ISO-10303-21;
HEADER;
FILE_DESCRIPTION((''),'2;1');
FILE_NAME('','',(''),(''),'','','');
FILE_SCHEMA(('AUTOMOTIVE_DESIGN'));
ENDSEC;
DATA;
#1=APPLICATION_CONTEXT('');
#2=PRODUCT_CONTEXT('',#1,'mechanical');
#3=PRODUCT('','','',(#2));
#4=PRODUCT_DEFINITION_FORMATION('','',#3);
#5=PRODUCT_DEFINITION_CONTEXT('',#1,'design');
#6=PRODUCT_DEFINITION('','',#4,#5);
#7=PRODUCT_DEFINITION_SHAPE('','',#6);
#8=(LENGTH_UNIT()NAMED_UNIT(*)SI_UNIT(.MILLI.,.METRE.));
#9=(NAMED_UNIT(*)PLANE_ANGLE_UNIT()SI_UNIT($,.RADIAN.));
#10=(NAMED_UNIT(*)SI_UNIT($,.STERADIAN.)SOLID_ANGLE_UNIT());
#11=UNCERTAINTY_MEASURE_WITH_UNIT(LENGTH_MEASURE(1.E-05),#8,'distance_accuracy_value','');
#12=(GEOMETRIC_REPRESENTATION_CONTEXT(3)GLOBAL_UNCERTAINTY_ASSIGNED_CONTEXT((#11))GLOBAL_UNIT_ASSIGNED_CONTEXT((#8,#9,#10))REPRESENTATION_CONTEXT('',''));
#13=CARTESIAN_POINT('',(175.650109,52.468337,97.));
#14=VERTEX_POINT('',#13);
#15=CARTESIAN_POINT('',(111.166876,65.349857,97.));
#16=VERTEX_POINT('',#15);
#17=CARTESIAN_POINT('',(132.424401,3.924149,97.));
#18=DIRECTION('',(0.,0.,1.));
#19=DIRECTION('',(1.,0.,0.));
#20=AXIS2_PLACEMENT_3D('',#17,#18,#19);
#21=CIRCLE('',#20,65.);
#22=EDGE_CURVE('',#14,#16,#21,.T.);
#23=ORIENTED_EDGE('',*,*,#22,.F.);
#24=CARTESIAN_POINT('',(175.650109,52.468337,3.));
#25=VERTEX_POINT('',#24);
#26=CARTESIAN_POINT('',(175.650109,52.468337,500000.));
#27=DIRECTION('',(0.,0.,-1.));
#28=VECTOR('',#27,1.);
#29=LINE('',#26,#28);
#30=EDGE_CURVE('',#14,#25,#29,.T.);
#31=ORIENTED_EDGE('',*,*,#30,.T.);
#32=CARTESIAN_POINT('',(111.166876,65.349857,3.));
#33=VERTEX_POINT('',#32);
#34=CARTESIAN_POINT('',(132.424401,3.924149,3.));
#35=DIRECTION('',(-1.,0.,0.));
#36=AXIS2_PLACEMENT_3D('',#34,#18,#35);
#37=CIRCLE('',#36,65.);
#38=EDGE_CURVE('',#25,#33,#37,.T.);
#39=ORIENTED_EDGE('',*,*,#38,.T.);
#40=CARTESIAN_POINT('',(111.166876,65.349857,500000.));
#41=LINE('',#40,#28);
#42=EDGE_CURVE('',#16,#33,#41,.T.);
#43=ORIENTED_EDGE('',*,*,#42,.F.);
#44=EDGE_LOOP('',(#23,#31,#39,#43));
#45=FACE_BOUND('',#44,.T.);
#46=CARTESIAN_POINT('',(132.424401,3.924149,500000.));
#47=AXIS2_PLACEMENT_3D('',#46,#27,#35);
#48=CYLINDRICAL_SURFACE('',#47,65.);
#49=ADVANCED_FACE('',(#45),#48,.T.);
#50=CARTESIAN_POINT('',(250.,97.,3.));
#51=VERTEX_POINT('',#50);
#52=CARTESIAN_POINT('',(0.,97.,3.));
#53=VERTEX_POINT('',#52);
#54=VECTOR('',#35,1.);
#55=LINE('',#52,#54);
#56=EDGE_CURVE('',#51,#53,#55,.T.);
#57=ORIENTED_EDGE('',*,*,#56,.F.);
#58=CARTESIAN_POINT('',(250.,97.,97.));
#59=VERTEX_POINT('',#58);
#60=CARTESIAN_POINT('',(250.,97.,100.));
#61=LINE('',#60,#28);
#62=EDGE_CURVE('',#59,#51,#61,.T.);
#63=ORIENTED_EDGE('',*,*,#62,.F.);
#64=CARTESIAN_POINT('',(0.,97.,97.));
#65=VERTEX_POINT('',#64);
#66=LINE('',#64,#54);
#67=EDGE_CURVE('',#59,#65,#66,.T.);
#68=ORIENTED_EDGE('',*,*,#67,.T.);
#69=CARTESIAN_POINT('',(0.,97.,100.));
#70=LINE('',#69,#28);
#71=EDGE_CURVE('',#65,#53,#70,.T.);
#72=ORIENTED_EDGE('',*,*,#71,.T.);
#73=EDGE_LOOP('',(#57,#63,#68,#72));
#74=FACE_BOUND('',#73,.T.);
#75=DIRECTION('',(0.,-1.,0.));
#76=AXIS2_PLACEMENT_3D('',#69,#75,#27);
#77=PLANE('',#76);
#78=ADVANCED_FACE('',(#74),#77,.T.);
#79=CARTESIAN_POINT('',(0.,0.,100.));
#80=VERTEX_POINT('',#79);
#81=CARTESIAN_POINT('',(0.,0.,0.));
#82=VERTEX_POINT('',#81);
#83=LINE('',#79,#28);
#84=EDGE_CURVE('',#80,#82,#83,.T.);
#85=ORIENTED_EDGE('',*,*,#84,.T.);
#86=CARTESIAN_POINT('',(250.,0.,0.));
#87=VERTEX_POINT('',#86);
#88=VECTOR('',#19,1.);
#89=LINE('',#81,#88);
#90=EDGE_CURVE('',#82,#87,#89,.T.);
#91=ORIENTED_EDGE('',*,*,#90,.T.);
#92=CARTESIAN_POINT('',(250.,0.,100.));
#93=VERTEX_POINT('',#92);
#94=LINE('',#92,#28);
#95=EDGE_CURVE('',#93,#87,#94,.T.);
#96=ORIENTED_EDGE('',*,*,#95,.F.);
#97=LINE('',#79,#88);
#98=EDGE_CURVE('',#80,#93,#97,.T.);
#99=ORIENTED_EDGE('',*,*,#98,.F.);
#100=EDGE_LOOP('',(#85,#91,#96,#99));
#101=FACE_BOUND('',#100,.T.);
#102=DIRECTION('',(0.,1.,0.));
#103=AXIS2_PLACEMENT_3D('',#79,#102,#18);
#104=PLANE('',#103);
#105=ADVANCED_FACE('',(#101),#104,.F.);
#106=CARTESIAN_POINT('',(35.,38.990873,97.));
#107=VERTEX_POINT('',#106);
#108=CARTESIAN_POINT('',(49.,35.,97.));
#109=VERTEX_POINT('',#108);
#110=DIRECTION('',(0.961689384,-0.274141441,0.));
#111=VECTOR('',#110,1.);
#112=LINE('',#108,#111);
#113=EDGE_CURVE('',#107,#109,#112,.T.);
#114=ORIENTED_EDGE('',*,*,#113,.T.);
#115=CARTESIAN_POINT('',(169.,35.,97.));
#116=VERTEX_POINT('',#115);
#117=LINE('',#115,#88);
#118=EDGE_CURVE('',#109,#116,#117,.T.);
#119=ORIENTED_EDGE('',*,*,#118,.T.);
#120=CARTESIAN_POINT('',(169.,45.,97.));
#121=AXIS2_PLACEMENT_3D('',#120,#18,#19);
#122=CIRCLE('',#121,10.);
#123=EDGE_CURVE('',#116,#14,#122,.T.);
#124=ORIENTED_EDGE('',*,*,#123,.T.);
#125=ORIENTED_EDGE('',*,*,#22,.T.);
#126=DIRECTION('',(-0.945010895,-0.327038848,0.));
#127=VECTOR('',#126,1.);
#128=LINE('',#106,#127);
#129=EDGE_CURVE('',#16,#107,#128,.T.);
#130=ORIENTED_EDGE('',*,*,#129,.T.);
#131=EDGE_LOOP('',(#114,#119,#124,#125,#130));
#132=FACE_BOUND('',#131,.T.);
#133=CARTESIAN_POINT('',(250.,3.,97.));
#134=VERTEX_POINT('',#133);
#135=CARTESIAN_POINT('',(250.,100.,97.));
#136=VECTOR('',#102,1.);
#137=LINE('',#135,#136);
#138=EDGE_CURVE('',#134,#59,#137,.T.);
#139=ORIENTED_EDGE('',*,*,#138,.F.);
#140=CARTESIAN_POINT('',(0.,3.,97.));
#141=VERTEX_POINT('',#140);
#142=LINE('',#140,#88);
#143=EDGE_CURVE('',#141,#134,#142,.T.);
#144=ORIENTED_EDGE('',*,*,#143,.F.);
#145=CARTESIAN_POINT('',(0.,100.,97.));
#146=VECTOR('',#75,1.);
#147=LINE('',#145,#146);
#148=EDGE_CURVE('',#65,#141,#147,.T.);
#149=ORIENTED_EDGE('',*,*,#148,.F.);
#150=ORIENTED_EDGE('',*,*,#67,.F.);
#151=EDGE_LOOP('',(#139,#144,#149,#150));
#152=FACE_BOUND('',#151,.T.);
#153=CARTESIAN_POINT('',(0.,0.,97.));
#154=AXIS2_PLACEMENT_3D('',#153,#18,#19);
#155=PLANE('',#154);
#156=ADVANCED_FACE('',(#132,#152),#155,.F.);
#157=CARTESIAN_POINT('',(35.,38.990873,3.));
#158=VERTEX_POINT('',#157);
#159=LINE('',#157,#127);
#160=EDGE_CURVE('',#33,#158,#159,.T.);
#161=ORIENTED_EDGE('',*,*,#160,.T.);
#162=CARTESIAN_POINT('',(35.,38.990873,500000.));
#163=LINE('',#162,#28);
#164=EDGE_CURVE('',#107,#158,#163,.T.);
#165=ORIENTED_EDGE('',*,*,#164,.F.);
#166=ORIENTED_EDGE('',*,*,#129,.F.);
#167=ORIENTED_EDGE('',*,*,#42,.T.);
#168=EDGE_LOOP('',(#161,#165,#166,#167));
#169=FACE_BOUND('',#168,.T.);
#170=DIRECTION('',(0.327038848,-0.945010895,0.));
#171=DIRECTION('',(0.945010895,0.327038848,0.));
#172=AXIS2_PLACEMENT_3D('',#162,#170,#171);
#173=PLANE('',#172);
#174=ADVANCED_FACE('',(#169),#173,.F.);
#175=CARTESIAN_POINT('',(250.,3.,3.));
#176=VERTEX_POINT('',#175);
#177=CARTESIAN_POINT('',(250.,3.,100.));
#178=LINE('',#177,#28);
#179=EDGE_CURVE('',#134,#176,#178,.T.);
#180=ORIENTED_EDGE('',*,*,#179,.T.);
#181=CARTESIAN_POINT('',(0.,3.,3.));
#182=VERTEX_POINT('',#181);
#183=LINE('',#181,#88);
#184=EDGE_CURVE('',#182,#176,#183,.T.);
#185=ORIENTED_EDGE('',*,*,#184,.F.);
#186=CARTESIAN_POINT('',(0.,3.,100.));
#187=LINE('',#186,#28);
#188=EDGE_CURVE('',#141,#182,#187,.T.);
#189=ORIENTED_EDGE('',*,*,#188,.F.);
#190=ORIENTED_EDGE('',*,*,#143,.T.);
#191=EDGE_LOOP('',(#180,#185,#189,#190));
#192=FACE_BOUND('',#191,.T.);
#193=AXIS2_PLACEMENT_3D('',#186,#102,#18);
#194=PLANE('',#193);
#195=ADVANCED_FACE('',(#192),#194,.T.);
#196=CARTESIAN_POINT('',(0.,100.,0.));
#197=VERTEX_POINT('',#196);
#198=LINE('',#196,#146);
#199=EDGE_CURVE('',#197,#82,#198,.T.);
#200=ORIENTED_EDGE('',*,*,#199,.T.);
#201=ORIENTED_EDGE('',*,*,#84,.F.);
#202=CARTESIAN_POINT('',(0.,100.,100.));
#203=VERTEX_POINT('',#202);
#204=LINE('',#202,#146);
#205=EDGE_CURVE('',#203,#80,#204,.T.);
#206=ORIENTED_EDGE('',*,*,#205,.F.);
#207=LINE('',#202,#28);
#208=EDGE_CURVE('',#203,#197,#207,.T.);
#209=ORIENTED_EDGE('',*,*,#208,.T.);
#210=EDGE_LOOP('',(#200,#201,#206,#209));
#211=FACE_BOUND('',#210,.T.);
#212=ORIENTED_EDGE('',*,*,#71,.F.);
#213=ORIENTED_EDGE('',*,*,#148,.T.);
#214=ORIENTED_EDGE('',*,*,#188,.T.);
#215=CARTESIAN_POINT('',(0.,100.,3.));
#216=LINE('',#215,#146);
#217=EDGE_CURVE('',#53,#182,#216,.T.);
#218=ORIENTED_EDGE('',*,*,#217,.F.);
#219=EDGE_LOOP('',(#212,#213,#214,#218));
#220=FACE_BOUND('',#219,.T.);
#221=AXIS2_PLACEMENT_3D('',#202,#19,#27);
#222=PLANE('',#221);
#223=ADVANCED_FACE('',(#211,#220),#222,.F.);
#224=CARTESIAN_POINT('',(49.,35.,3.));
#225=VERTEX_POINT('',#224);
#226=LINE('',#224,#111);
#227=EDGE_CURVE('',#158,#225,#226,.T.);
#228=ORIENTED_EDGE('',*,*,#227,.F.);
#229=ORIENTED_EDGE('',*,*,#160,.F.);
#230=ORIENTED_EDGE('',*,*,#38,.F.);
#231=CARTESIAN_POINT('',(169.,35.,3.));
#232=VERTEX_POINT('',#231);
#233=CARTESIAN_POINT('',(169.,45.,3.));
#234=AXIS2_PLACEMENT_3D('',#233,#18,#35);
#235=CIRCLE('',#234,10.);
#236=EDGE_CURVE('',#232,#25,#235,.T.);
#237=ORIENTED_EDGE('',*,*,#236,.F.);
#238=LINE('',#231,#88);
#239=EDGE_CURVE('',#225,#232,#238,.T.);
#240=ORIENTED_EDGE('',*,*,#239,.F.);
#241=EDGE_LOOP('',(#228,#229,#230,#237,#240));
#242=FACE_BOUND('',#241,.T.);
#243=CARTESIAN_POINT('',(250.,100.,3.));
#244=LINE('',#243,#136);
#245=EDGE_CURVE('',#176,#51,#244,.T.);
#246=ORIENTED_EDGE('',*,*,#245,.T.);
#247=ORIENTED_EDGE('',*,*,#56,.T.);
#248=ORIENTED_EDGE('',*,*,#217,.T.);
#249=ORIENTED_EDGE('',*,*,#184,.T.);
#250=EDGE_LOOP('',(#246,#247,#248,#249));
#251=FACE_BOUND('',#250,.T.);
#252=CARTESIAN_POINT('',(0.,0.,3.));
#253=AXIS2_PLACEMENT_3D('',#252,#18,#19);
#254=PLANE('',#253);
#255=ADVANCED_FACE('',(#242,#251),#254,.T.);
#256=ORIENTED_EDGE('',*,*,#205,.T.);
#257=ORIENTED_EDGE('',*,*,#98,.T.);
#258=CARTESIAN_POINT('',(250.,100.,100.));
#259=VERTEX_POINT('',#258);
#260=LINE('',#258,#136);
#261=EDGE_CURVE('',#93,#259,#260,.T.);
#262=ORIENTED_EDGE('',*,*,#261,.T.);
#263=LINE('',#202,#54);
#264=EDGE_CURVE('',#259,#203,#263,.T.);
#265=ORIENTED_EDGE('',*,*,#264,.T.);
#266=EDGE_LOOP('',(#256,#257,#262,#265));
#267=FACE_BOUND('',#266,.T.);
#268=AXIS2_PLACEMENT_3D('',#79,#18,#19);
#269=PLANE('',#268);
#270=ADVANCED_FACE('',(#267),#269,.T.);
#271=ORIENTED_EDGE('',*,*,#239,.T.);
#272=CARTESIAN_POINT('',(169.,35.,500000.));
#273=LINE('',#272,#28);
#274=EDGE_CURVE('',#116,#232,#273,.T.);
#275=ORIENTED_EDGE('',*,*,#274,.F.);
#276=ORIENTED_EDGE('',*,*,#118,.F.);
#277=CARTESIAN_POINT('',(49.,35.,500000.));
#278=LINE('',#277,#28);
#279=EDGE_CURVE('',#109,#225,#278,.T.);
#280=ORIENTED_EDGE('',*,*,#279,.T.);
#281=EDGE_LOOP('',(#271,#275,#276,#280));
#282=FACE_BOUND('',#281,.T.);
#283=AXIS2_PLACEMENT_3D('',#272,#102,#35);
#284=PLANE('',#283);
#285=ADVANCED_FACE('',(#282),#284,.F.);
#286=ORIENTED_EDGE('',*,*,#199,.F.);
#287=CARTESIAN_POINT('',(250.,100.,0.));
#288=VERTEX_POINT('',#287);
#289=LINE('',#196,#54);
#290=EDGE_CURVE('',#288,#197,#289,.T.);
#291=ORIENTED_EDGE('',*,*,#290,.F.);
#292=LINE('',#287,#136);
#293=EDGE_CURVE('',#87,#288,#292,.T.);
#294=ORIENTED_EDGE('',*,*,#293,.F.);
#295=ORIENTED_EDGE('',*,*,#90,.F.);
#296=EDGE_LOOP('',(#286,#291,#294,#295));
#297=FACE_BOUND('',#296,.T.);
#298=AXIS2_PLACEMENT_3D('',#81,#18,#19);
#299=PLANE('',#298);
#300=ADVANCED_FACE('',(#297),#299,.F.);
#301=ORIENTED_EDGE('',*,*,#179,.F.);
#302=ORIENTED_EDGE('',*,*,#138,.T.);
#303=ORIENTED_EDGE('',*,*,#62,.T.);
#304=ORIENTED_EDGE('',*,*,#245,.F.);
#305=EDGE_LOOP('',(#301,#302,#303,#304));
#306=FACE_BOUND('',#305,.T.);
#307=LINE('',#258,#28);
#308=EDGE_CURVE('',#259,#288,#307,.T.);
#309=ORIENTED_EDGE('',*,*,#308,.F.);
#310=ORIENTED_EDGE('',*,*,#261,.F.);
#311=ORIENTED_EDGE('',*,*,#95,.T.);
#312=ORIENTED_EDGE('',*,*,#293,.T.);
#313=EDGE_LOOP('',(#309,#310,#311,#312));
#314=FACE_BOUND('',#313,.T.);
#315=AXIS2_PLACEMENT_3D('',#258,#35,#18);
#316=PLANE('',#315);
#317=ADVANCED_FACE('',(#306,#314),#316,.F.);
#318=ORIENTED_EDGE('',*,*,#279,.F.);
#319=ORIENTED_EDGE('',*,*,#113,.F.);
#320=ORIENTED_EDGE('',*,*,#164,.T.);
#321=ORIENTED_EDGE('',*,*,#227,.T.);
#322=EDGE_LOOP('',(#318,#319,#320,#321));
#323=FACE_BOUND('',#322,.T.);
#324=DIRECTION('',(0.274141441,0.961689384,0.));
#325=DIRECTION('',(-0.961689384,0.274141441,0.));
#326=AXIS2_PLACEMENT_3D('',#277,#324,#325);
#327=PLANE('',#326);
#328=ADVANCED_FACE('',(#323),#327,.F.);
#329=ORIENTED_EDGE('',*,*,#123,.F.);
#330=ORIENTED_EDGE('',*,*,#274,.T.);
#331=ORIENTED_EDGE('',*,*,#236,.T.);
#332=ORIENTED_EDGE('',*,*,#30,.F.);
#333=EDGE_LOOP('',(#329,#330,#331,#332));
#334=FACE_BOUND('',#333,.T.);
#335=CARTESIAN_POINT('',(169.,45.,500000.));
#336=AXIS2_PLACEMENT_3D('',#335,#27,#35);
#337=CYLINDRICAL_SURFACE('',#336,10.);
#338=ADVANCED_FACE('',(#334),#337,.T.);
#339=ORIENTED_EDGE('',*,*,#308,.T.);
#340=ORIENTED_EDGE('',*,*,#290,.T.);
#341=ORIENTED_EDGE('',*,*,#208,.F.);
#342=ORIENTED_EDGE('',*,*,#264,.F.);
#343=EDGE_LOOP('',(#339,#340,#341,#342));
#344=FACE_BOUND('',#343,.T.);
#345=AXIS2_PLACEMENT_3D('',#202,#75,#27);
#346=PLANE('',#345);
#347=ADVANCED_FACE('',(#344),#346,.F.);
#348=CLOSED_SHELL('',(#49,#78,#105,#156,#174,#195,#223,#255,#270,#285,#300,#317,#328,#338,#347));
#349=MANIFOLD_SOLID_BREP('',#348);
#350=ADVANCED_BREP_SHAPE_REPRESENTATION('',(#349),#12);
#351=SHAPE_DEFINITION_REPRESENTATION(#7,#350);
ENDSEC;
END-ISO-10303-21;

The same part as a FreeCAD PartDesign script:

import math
import FreeCAD as App
import Part
import Sketcher

V = App.Vector


def faces_at(feature, points):
    """Names of the faces that lie closest to the given points."""
    faces = feature.Shape.Faces
    near = lambda p: min(range(len(faces)), key=lambda i: faces[i].distToShape(Part.Vertex(*p))[0])
    return sorted({f"Face{near(p) + 1}" for p in points})

doc = App.newDocument("Part")
params = doc.addObject("Spreadsheet::Sheet", "Params")
for row, (alias, value) in enumerate([
    ("sketch1_width", "250 mm"),
    ("sketch1_height", "100 mm"),
    ("pad1_length", "100 mm"),
    ("thickness_wall", "3 mm"),
    ("sketch2_radius", "10 mm"),
    ("sketch2_radius2", "65 mm"),
    ("sketch2_width", "120 mm"),
], start=1):
    params.set(f"A{row}", alias)
    params.set(f"B{row}", "=" + value)
    params.setAlias(f"B{row}", alias)

body = doc.addObject("PartDesign::Body", "Body")

sketch1 = body.newObject("Sketcher::SketchObject", "Sketch")
sketch1.AttachmentSupport = (doc.getObject("XY_Plane"), [""])
sketch1.MapMode = "FlatFace"
sketch1.addGeometry([
    Part.LineSegment(V(0, 100, 0), V(0, 0, 0)),
    Part.LineSegment(V(0, 0, 0), V(250, 0, 0)),
    Part.LineSegment(V(250, 0, 0), V(250, 100, 0)),
    Part.LineSegment(V(250, 100, 0), V(0, 100, 0)),
], False)
sketch1.addConstraint([
    Sketcher.Constraint("Coincident", 0, 2, 1, 1),
    Sketcher.Constraint("Coincident", 1, 2, 2, 1),
    Sketcher.Constraint("Coincident", 2, 2, 3, 1),
    Sketcher.Constraint("Coincident", 3, 2, 0, 1),
    Sketcher.Constraint("Vertical", 0),
    Sketcher.Constraint("Horizontal", 1),
    Sketcher.Constraint("Vertical", 2),
    Sketcher.Constraint("Horizontal", 3),
    Sketcher.Constraint("Coincident", 0, 2, -1, 1),
    Sketcher.Constraint("DistanceX", 1, 1, 1, 2, 250.0),
    Sketcher.Constraint("DistanceY", 0, 2, 0, 1, 100.0),
])
sketch1.setExpression("Constraints[9]", "Params.sketch1_width")
sketch1.setExpression("Constraints[10]", "Params.sketch1_height")
pad1 = body.newObject("PartDesign::Pad", "Pad")
pad1.Profile = sketch1
pad1.setExpression("Length", "Params.pad1_length")
doc.recompute()

thickness = body.newObject("PartDesign::Thickness", "Thickness")
thickness.Base = (pad1, faces_at(pad1, [(250, 50, 50), (0, 50, 50)]))
thickness.setExpression("Value", "Params.thickness_wall")
thickness.Reversed = True
thickness.Join = "Intersection"

sketch2 = body.newObject("Sketcher::SketchObject", "Sketch001")
sketch2.AttachmentSupport = (doc.getObject("XY_Plane"), [""])
sketch2.MapMode = "FlatFace"
sketch2.AttachmentOffset = App.Placement(V(0, 0, 3), App.Rotation())
sketch2.addGeometry([
    Part.LineSegment(V(111, 65, 0), V(35, 39, 0)),
    Part.LineSegment(V(35, 39, 0), V(49, 35, 0)),
    Part.LineSegment(V(49, 35, 0), V(169, 35, 0)),
    Part.ArcOfCircle(Part.Circle(V(169, 45, 0), V(0, 0, 1), 10), math.radians(-90), math.radians(48)),
    Part.ArcOfCircle(Part.Circle(V(132, 4, 0), V(0, 0, 1), 65), math.radians(48), math.radians(109)),
], False)
sketch2.addConstraint([
    Sketcher.Constraint("Coincident", 0, 2, 1, 1),
    Sketcher.Constraint("Coincident", 1, 2, 2, 1),
    Sketcher.Constraint("Tangent", 2, 2, 3, 1),
    Sketcher.Constraint("Tangent", 3, 2, 4, 1),
    Sketcher.Constraint("Tangent", 4, 2, 0, 1),
    Sketcher.Constraint("Horizontal", 2),
    Sketcher.Constraint("Radius", 3, 10.0),
    Sketcher.Constraint("Radius", 4, 65.0),
    Sketcher.Constraint("DistanceX", 2, 1, 2, 2, 120.0),
    Sketcher.Constraint("DistanceX", -1, 1, 3, 3, 169.0),
    Sketcher.Constraint("DistanceY", -1, 1, 3, 3, 45.0),
    Sketcher.Constraint("DistanceX", -1, 1, 0, 2, 35.0),
    Sketcher.Constraint("DistanceX", -1, 1, 4, 3, 132.424401),
    Sketcher.Constraint("Distance", 0, 80.598939),
])
sketch2.setExpression("Constraints[6]", "Params.sketch2_radius")
sketch2.setExpression("Constraints[7]", "Params.sketch2_radius2")
sketch2.setExpression("Constraints[8]", "Params.sketch2_width")
pad2 = body.newObject("PartDesign::Pad", "Pad001")
pad2.Profile = sketch2
pad2.Type = "UpToFirst"

doc.recompute()
